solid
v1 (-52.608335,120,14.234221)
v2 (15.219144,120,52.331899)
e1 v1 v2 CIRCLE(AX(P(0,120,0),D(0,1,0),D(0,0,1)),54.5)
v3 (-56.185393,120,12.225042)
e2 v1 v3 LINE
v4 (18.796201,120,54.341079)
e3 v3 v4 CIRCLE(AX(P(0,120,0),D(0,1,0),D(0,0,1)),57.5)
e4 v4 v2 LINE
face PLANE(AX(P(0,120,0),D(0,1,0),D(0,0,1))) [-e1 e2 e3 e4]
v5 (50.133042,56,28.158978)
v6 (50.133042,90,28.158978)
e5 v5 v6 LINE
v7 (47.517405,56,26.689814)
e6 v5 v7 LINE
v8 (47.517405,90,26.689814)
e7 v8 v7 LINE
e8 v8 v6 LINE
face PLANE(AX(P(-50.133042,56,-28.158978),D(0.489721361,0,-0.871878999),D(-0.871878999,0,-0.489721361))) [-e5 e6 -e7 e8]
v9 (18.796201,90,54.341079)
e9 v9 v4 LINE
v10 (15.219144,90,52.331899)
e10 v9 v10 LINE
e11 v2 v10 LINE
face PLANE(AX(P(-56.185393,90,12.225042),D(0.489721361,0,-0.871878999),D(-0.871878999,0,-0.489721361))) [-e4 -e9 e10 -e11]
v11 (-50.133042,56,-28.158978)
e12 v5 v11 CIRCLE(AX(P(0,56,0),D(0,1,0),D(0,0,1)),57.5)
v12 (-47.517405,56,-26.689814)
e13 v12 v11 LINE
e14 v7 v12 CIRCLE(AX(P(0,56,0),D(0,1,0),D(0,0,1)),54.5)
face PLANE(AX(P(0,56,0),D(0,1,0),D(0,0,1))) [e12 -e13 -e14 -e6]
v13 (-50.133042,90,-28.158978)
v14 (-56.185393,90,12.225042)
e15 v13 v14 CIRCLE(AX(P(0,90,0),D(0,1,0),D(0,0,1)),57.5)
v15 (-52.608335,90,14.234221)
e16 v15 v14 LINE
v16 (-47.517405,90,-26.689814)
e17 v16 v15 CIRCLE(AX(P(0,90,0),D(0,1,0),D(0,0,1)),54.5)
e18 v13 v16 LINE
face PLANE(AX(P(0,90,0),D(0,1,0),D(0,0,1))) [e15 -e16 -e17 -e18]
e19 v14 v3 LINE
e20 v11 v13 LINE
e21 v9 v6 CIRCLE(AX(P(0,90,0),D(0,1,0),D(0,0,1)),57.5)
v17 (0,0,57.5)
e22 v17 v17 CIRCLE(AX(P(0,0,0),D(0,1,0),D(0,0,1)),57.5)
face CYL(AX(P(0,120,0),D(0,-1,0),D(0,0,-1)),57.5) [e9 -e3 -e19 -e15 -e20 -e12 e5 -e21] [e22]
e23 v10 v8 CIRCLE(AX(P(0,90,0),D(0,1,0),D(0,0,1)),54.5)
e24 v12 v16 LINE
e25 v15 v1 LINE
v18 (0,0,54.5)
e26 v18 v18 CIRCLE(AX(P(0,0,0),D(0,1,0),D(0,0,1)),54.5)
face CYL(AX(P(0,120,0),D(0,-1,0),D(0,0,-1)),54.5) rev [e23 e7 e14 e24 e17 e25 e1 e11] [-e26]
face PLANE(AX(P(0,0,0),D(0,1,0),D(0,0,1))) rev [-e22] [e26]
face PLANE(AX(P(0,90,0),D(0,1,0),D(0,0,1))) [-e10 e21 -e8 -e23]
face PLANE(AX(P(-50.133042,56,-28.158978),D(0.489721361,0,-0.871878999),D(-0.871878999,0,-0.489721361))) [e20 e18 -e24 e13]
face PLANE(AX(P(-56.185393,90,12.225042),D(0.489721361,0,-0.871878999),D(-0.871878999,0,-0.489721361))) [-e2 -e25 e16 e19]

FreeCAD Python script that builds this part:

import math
import FreeCAD as App
import Part
import Sketcher
Q = App.Units.Quantity

doc = App.newDocument("Part")
body = doc.addObject("PartDesign::Body", "Body")

# Sketch on XZ plane
sketch1 = body.newObject("Sketcher::SketchObject", "Sketch")
sketch1.AttachmentSupport = (doc.getObject("XZ_Plane"), [""])
sketch1.MapMode = "FlatFace"
sketch1.addGeometry(Part.Circle(App.Vector(0, 0, 0), App.Vector(0, 0, 1), 57.5), False)
sketch1.addGeometry(Part.Circle(App.Vector(0, 0, 0), App.Vector(0, 0, 1), 54.5), False)
sketch1.addConstraint(Sketcher.Constraint("Coincident", 0, 3, -1, 1))
sketch1.addConstraint(Sketcher.Constraint("Coincident", 1, 3, -1, 1))
sketch1.addConstraint(Sketcher.Constraint("Diameter", 0, Q("115 mm")))
sketch1.addConstraint(Sketcher.Constraint("Diameter", 1, Q("109 mm")))
pad1 = body.newObject("PartDesign::Pad", "Pad")
pad1.Profile = sketch1
pad1.Length = 120
pad1.Reversed = True

# Sketch on XZ plane
sketch2 = body.newObject("Sketcher::SketchObject", "Sketch001")
sketch2.AttachmentSupport = (doc.getObject("XZ_Plane"), [""])
sketch2.MapMode = "FlatFace"
sketch2.AttachmentOffset = App.Placement(App.Vector(0, 0, -120), App.Rotation())
sketch2.addGeometry(Part.LineSegment(App.Vector(-78.711, -78.711, 0), App.Vector(-78.711, 78.711, 0)), False)
sketch2.addGeometry(Part.LineSegment(App.Vector(-78.711, 78.711, 0), App.Vector(78.711, 78.711, 0)), False)
sketch2.addGeometry(Part.LineSegment(App.Vector(78.711, 78.711, 0), App.Vector(78.711, -78.711, 0)), False)
sketch2.addGeometry(Part.LineSegment(App.Vector(78.711, -78.711, 0), App.Vector(-78.711, -78.711, 0)), False)
sketch2.addGeometry(Part.ArcOfCircle(Part.Circle(App.Vector(0, 0, 0), App.Vector(0, 0, 1), 57.5), math.radians(29.322269), math.radians(209.322269)), False)
sketch2.addGeometry(Part.LineSegment(App.Vector(-50.133042, -28.158978, 0), App.Vector(50.133042, 28.158978, 0)), False)
sketch2.addConstraint(Sketcher.Constraint("Coincident", 0, 2, 1, 1))
sketch2.addConstraint(Sketcher.Constraint("Coincident", 1, 2, 2, 1))
sketch2.addConstraint(Sketcher.Constraint("Coincident", 2, 2, 3, 1))
sketch2.addConstraint(Sketcher.Constraint("Coincident", 3, 2, 0, 1))
sketch2.addConstraint(Sketcher.Constraint("Coincident", 4, 1, 5, 2))
sketch2.addConstraint(Sketcher.Constraint("Coincident", 5, 1, 4, 2))
sketch2.addConstraint(Sketcher.Constraint("Vertical", 0))
sketch2.addConstraint(Sketcher.Constraint("Horizontal", 1))
sketch2.addConstraint(Sketcher.Constraint("Vertical", 2))
sketch2.addConstraint(Sketcher.Constraint("Horizontal", 3))
sketch2.addConstraint(Sketcher.Constraint("Coincident", 4, 3, -1, 1))
sketch2.addConstraint(Sketcher.Constraint("Symmetric", 0, 2, 2, 2, -1, 1))
sketch2.addConstraint(Sketcher.Constraint("Equal", 3, 0))
sketch2.addConstraint(Sketcher.Constraint("Radius", 4, Q("57.5 mm")))
sketch2.addConstraint(Sketcher.Constraint("DistanceX", 1, 1, 1, 2, Q("157.422 mm")))
sketch2.addConstraint(Sketcher.Constraint("DistanceY", -1, 1, 4, 1, Q("28.158978 mm")))
sketch2.addConstraint(Sketcher.Constraint("DistanceY", 5, 1, -1, 1, Q("28.158978 mm")))
pocket1 = body.newObject("PartDesign::Pocket", "Pocket")
pocket1.Profile = sketch2
pocket1.Length = 64
pocket1.Reversed = True

# Sketch on XZ plane
sketch3 = body.newObject("Sketcher::SketchObject", "Sketch002")
sketch3.AttachmentSupport = (doc.getObject("XZ_Plane"), [""])
sketch3.MapMode = "FlatFace"
sketch3.AttachmentOffset = App.Placement(App.Vector(0, 0, -120), App.Rotation())
sketch3.addGeometry(Part.LineSegment(App.Vector(-78.711, -78.711, 0), App.Vector(-78.711, 78.711, 0)), False)
sketch3.addGeometry(Part.LineSegment(App.Vector(-78.711, 78.711, 0), App.Vector(78.711, 78.711, 0)), False)
sketch3.addGeometry(Part.LineSegment(App.Vector(78.711, 78.711, 0), App.Vector(78.711, -78.711, 0)), False)
sketch3.addGeometry(Part.LineSegment(App.Vector(78.711, -78.711, 0), App.Vector(-78.711, -78.711, 0)), False)
sketch3.addGeometry(Part.ArcOfCircle(Part.Circle(App.Vector(0, 0, 0), App.Vector(0, 0, 1), 57.5), math.radians(70.919853), math.radians(167.724685)), False)
sketch3.addGeometry(Part.LineSegment(App.Vector(-56.185393, 12.225042, 0), App.Vector(18.796201, 54.341079, 0)), False)
sketch3.addConstraint(Sketcher.Constraint("Coincident", 0, 2, 1, 1))
sketch3.addConstraint(Sketcher.Constraint("Coincident", 1, 2, 2, 1))
sketch3.addConstraint(Sketcher.Constraint("Coincident", 2, 2, 3, 1))
sketch3.addConstraint(Sketcher.Constraint("Coincident", 3, 2, 0, 1))
sketch3.addConstraint(Sketcher.Constraint("Coincident", 4, 1, 5, 2))
sketch3.addConstraint(Sketcher.Constraint("Coincident", 5, 1, 4, 2))
sketch3.addConstraint(Sketcher.Constraint("Vertical", 0))
sketch3.addConstraint(Sketcher.Constraint("Horizontal", 1))
sketch3.addConstraint(Sketcher.Constraint("Vertical", 2))
sketch3.addConstraint(Sketcher.Constraint("Horizontal", 3))
sketch3.addConstraint(Sketcher.Constraint("Coincident", 4, 3, -1, 1))
sketch3.addConstraint(Sketcher.Constraint("Symmetric", 0, 2, 2, 2, -1, 1))
sketch3.addConstraint(Sketcher.Constraint("Equal", 3, 0))
sketch3.addConstraint(Sketcher.Constraint("Radius", 4, Q("57.5 mm")))
sketch3.addConstraint(Sketcher.Constraint("Distance", 5, Q("86 mm")))
sketch3.addConstraint(Sketcher.Constraint("DistanceX", 1, 1, 1, 2, Q("157.422 mm")))
sketch3.addConstraint(Sketcher.Constraint("DistanceX", -1, 1, 4, 1, Q("18.796201 mm")))
pocket2 = body.newObject("PartDesign::Pocket", "Pocket001")
pocket2.Profile = sketch3
pocket2.Length = 30
pocket2.Reversed = True

doc.recompute()
